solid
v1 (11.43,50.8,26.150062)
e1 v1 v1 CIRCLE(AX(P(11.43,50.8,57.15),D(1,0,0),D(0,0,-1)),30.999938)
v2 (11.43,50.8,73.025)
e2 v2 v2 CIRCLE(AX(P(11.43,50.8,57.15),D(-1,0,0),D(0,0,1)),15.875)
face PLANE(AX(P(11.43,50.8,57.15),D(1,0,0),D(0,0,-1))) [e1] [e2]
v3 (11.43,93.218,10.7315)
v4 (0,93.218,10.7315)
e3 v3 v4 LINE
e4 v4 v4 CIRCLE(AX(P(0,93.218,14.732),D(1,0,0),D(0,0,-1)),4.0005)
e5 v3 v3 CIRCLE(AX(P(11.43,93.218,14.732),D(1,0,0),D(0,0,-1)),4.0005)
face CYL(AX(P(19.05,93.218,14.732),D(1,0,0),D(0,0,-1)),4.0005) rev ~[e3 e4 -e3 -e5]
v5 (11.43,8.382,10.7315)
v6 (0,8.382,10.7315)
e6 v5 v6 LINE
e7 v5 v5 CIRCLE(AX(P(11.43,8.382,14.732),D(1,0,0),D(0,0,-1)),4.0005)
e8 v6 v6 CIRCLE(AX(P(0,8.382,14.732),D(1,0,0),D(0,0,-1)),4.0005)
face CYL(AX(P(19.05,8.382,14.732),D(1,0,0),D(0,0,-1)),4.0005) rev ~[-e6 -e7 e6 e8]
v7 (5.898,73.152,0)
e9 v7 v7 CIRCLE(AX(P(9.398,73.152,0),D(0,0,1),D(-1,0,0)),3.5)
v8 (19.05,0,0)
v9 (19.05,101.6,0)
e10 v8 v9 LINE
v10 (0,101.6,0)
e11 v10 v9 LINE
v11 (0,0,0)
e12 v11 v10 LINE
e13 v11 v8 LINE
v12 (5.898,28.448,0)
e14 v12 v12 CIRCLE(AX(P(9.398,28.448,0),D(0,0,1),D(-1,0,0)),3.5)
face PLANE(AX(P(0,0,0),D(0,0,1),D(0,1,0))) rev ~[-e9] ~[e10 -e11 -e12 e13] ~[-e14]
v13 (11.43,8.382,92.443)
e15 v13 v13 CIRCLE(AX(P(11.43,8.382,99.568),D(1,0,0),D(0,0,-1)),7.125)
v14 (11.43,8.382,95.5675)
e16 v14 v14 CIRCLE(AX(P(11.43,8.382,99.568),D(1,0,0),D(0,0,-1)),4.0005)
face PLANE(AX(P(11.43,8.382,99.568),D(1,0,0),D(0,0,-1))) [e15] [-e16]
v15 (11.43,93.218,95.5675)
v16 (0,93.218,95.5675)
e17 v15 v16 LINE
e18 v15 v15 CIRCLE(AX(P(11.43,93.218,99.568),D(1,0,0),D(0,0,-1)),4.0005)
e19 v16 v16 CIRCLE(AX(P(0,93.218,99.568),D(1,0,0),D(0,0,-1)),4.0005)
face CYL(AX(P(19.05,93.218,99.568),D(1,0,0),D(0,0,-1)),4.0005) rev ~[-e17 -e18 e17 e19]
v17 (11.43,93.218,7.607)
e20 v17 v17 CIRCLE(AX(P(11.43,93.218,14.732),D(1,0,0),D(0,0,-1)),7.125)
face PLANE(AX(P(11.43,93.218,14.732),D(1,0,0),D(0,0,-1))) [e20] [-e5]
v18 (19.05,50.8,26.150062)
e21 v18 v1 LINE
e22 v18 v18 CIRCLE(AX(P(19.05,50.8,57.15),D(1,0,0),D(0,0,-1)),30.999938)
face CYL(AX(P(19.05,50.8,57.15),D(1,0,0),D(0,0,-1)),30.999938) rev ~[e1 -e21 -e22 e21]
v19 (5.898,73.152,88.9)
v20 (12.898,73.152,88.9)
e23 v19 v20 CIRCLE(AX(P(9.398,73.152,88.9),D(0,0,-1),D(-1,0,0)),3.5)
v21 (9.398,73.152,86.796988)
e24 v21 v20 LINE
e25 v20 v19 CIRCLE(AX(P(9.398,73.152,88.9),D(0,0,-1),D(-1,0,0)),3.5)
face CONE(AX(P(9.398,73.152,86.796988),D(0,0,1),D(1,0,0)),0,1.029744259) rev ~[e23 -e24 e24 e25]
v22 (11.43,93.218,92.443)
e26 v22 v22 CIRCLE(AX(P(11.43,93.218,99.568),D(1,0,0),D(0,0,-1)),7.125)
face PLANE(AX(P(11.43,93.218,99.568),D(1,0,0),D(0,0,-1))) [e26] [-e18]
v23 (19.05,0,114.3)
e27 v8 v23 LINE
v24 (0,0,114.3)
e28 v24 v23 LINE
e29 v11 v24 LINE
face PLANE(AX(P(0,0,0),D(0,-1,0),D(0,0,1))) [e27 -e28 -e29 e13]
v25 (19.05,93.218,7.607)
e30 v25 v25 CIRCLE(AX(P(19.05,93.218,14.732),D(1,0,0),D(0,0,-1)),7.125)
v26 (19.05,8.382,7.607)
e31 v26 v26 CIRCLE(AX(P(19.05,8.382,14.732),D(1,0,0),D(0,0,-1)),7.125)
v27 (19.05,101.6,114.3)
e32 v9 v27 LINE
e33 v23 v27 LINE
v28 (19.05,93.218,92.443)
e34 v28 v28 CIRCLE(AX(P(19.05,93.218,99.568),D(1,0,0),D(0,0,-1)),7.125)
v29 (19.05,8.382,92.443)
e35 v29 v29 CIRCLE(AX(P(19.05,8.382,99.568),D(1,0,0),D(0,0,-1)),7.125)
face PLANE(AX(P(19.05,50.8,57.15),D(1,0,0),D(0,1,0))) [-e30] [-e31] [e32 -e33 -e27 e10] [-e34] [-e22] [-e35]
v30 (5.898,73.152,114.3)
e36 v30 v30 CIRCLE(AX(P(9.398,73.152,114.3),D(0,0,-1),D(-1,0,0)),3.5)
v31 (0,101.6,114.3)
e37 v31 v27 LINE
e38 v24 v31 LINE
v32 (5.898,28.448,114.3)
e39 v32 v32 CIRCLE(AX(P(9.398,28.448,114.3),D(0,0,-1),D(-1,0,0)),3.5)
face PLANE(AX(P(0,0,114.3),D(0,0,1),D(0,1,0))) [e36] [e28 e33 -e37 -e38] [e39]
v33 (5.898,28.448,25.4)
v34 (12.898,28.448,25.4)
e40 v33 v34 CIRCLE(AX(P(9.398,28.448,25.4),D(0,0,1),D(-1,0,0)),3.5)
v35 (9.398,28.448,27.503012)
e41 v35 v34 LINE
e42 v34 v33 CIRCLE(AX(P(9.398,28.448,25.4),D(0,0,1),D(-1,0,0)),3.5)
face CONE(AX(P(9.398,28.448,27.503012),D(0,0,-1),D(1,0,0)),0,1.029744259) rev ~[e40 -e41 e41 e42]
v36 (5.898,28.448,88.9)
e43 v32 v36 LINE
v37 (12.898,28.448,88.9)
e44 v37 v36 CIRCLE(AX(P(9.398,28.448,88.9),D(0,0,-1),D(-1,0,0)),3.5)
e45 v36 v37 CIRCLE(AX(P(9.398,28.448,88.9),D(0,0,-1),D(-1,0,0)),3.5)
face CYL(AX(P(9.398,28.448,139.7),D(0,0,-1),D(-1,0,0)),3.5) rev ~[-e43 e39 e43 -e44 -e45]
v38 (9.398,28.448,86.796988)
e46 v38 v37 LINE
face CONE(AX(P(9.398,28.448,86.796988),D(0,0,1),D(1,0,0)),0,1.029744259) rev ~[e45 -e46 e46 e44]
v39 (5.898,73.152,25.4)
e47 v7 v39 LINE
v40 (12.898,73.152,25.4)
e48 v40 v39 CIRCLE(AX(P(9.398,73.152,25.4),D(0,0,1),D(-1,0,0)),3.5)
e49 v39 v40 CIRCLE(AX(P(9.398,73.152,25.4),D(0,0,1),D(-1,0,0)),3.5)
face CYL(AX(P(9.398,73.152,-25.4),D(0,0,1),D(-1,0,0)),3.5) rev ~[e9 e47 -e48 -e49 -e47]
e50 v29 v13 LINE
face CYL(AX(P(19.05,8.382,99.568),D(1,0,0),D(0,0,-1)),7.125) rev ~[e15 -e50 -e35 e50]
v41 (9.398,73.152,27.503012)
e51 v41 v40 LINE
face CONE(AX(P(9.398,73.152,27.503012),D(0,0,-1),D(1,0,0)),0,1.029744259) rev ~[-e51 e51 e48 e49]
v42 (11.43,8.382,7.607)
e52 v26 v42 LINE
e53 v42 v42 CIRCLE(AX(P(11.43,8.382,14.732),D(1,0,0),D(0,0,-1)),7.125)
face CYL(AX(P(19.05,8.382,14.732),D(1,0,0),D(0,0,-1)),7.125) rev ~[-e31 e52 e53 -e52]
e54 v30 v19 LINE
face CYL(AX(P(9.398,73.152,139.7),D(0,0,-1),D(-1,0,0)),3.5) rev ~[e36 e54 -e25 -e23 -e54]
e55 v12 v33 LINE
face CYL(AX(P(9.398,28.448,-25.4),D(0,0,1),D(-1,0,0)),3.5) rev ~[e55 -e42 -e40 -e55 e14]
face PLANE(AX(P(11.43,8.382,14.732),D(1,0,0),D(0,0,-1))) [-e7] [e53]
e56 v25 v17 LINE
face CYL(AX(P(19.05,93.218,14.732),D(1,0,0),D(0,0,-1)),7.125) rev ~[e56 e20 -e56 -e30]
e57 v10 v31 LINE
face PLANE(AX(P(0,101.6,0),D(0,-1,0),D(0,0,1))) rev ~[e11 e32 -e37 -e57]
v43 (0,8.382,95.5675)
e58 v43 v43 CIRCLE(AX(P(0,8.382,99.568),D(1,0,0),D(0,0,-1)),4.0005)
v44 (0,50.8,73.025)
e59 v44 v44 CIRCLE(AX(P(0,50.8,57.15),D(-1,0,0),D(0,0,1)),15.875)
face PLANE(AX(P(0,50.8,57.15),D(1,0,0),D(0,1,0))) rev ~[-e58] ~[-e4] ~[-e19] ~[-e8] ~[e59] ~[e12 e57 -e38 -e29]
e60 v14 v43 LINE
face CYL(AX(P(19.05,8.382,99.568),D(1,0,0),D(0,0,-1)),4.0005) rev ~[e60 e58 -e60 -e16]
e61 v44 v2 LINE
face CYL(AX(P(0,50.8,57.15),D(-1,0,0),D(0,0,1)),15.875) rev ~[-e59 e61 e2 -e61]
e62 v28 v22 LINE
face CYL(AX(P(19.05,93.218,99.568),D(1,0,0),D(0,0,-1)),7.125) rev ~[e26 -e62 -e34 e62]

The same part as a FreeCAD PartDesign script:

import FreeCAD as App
import Part
import Sketcher
Q = App.Units.Quantity


def add_polygon(sketch, points):
    """Adds a closed chain of lines whose ends are joined by coincident constraints."""
    first, n = sketch.GeometryCount, len(points)
    for a, b in zip(points, points[1:] + points[:1]):
        sketch.addGeometry(Part.LineSegment(App.Vector(*a, 0), App.Vector(*b, 0)), False)
    for i in range(n):
        sketch.addConstraint(Sketcher.Constraint("Coincident", first + i, 2, first + (i + 1) % n, 1))

doc = App.newDocument("Part")
params = doc.addObject("Spreadsheet::Sheet", "Params")
for row, (alias, value) in enumerate([
    ("sketch1_width", "4 in"),
    ("sketch1_height", "4.5 in"),
    ("pad1_length", "0.75 in"),
    ("pocket1_length", "0.3 in"),
    ("sketch3_diameter", "1.25 in"),
    ("sketch4_diameter", "0.315 in"),
    ("pocket4_length", "0.3 in"),
    ("hole_diameter", "7 mm"),
    ("hole_depth", "1 in"),
    ("hole2_diameter", "7 mm"),
    ("hole2_depth", "1 in"),
], start=1):
    params.set(f"A{row}", alias)
    params.set(f"B{row}", "=" + value)
    params.setAlias(f"B{row}", alias)

body = doc.addObject("PartDesign::Body", "Body")

# Sketch on YZ plane
sketch1 = body.newObject("Sketcher::SketchObject", "Sketch")
sketch1.AttachmentSupport = (doc.getObject("YZ_Plane"), [""])
sketch1.MapMode = "FlatFace"
add_polygon(sketch1, [(0, 114.3), (0, 0), (101.6, 0), (101.6, 114.3)])  # lines 0-3
sketch1.addConstraint(Sketcher.Constraint("Vertical", 0))
sketch1.addConstraint(Sketcher.Constraint("Horizontal", 1))
sketch1.addConstraint(Sketcher.Constraint("Vertical", 2))
sketch1.addConstraint(Sketcher.Constraint("Horizontal", 3))
sketch1.addConstraint(Sketcher.Constraint("Coincident", 0, 2, -1, 1))
sketch1.addConstraint(Sketcher.Constraint("DistanceX", 1, 1, 1, 2, Q("4 in")))
sketch1.addConstraint(Sketcher.Constraint("DistanceY", 0, 2, 0, 1, Q("4.5 in")))
sketch1.setExpression("Constraints[9]", "Params.sketch1_width")
sketch1.setExpression("Constraints[10]", "Params.sketch1_height")
pad1 = body.newObject("PartDesign::Pad", "Pad")
pad1.Profile = sketch1
pad1.setExpression("Length", "Params.pad1_length")

# Sketch on YZ plane
sketch2 = body.newObject("Sketcher::SketchObject", "Sketch001")
sketch2.AttachmentSupport = (doc.getObject("YZ_Plane"), [""])
sketch2.MapMode = "FlatFace"
sketch2.AttachmentOffset = App.Placement(App.Vector(0, 0, 0.75 * 25.4), App.Rotation())
sketch2.addGeometry(Part.Circle(App.Vector(50.8, 57.15, 0), App.Vector(0, 0, 1), 30.999938), False)
sketch2.addConstraint(Sketcher.Constraint("DistanceX", -1, 1, 0, 3, Q("2 in")))
sketch2.addConstraint(Sketcher.Constraint("DistanceY", -1, 1, 0, 3, Q("2.25 in")))
sketch2.addConstraint(Sketcher.Constraint("Diameter", 0, 61.999876))
pocket1 = body.newObject("PartDesign::Pocket", "Pocket")
pocket1.Profile = sketch2
pocket1.setExpression("Length", "Params.pocket1_length")

# Sketch on YZ plane
sketch3 = body.newObject("Sketcher::SketchObject", "Sketch002")
sketch3.AttachmentSupport = (doc.getObject("YZ_Plane"), [""])
sketch3.MapMode = "FlatFace"
sketch3.addGeometry(Part.Circle(App.Vector(50.8, 57.15, 0), App.Vector(0, 0, 1), 15.875), False)
sketch3.addConstraint(Sketcher.Constraint("Diameter", 0, Q("1.25 in")))
sketch3.addConstraint(Sketcher.Constraint("DistanceX", -1, 1, 0, 3, Q("2 in")))
sketch3.addConstraint(Sketcher.Constraint("DistanceY", -1, 1, 0, 3, Q("2.25 in")))
sketch3.setExpression("Constraints[0]", "Params.sketch3_diameter")
pocket2 = body.newObject("PartDesign::Pocket", "Pocket001")
pocket2.Profile = sketch3
pocket2.Type = "ThroughAll"
pocket2.Reversed = True

# Sketch on YZ plane
sketch4 = body.newObject("Sketcher::SketchObject", "Sketch003")
sketch4.AttachmentSupport = (doc.getObject("YZ_Plane"), [""])
sketch4.MapMode = "FlatFace"
sketch4.AttachmentOffset = App.Placement(App.Vector(0, 0, 0.75 * 25.4), App.Rotation())
sketch4.addGeometry(Part.Circle(App.Vector(8.382, 99.568, 0), App.Vector(0, 0, 1), 4.0005), False)
sketch4.addGeometry(Part.Circle(App.Vector(93.218, 99.568, 0), App.Vector(0, 0, 1), 4.0005), False)
sketch4.addGeometry(Part.Circle(App.Vector(93.218, 14.732, 0), App.Vector(0, 0, 1), 4.0005), False)
sketch4.addGeometry(Part.Circle(App.Vector(8.382, 14.732, 0), App.Vector(0, 0, 1), 4.0005), False)
sketch4.addConstraint(Sketcher.Constraint("Equal", 0, 1))
sketch4.addConstraint(Sketcher.Constraint("Equal", 1, 2))
sketch4.addConstraint(Sketcher.Constraint("Equal", 2, 3))
sketch4.addConstraint(Sketcher.Constraint("Horizontal", 0, 3, 1, 3))
sketch4.addConstraint(Sketcher.Constraint("Horizontal", 2, 3, 3, 3))
sketch4.addConstraint(Sketcher.Constraint("Vertical", 1, 3, 2, 3))
sketch4.addConstraint(Sketcher.Constraint("Vertical", 0, 3, 3, 3))
sketch4.addConstraint(Sketcher.Constraint("Diameter", 0, Q("0.315 in")))
sketch4.addConstraint(Sketcher.Constraint("DistanceX", -1, 1, 0, 3, Q("0.33 in")))
sketch4.addConstraint(Sketcher.Constraint("DistanceY", -1, 1, 0, 3, Q("3.92 in")))
sketch4.addConstraint(Sketcher.Constraint("DistanceX", -1, 1, 1, 3, Q("3.67 in")))
sketch4.addConstraint(Sketcher.Constraint("DistanceY", -1, 1, 2, 3, Q("0.58 in")))
sketch4.setExpression("Constraints[7]", "Params.sketch4_diameter")
pocket3 = body.newObject("PartDesign::Pocket", "Pocket002")
pocket3.Profile = sketch4
pocket3.Type = "ThroughAll"

# Sketch on YZ plane
sketch5 = body.newObject("Sketcher::SketchObject", "Sketch004")
sketch5.AttachmentSupport = (doc.getObject("YZ_Plane"), [""])
sketch5.MapMode = "FlatFace"
sketch5.AttachmentOffset = App.Placement(App.Vector(0, 0, 0.75 * 25.4), App.Rotation())
sketch5.addGeometry(Part.Circle(App.Vector(8.382, 99.568, 0), App.Vector(0, 0, 1), 7.125), False)
sketch5.addGeometry(Part.Circle(App.Vector(93.218, 99.568, 0), App.Vector(0, 0, 1), 7.125), False)
sketch5.addGeometry(Part.Circle(App.Vector(93.218, 14.732, 0), App.Vector(0, 0, 1), 7.125), False)
sketch5.addGeometry(Part.Circle(App.Vector(8.382, 14.732, 0), App.Vector(0, 0, 1), 7.125), False)
sketch5.addConstraint(Sketcher.Constraint("Equal", 0, 1))
sketch5.addConstraint(Sketcher.Constraint("Equal", 1, 2))
sketch5.addConstraint(Sketcher.Constraint("Equal", 2, 3))
sketch5.addConstraint(Sketcher.Constraint("Horizontal", 0, 3, 1, 3))
sketch5.addConstraint(Sketcher.Constraint("Horizontal", 2, 3, 3, 3))
sketch5.addConstraint(Sketcher.Constraint("Vertical", 1, 3, 2, 3))
sketch5.addConstraint(Sketcher.Constraint("Vertical", 0, 3, 3, 3))
sketch5.addConstraint(Sketcher.Constraint("Diameter", 0, 14.249999))
sketch5.addConstraint(Sketcher.Constraint("DistanceX", -1, 1, 0, 3, Q("0.33 in")))
sketch5.addConstraint(Sketcher.Constraint("DistanceY", -1, 1, 0, 3, Q("3.92 in")))
sketch5.addConstraint(Sketcher.Constraint("DistanceX", -1, 1, 1, 3, Q("3.67 in")))
sketch5.addConstraint(Sketcher.Constraint("DistanceY", -1, 1, 2, 3, Q("0.58 in")))
pocket4 = body.newObject("PartDesign::Pocket", "Pocket003")
pocket4.Profile = sketch5
pocket4.setExpression("Length", "Params.pocket4_length")

# Sketch on XY plane
sketch6 = body.newObject("Sketcher::SketchObject", "Sketch005")
sketch6.AttachmentSupport = (doc.getObject("XY_Plane"), [""])
sketch6.MapMode = "FlatFace"
sketch6.AttachmentOffset = App.Placement(App.Vector(0, 0, 4.5 * 25.4), App.Rotation())
sketch6.addGeometry(Part.Circle(App.Vector(9.398, 73.152, 0), App.Vector(0, 0, 1), 3.5), False)
sketch6.addGeometry(Part.Circle(App.Vector(9.398, 28.448, 0), App.Vector(0, 0, 1), 3.5), False)
sketch6.addConstraint(Sketcher.Constraint("Equal", 0, 1))
sketch6.addConstraint(Sketcher.Constraint("Vertical", 0, 3, 1, 3))
sketch6.addConstraint(Sketcher.Constraint("Diameter", 0, 7.0))
sketch6.addConstraint(Sketcher.Constraint("DistanceX", -1, 1, 0, 3, Q("0.37 in")))
sketch6.addConstraint(Sketcher.Constraint("DistanceY", -1, 1, 0, 3, Q("2.88 in")))
sketch6.addConstraint(Sketcher.Constraint("DistanceY", -1, 1, 1, 3, Q("1.12 in")))
doc.recompute()
hole = body.newObject("PartDesign::Hole", "Hole")
hole.Profile = sketch6
hole.ThreadType = "None"
hole.setExpression("Diameter", "Params.hole_diameter")
hole.DepthType = "Dimension"
hole.setExpression("Depth", "Params.hole_depth")
hole.DrillPoint = "Angled"
hole.DrillPointAngle = 118

# Sketch on XY plane
sketch7 = body.newObject("Sketcher::SketchObject", "Sketch006")
sketch7.AttachmentSupport = (doc.getObject("XY_Plane"), [""])
sketch7.MapMode = "FlatFace"
sketch7.addGeometry(Part.Circle(App.Vector(9.398, 73.152, 0), App.Vector(0, 0, 1), 3.5), False)
sketch7.addGeometry(Part.Circle(App.Vector(9.398, 28.448, 0), App.Vector(0, 0, 1), 3.5), False)
sketch7.addConstraint(Sketcher.Constraint("Equal", 0, 1))
sketch7.addConstraint(Sketcher.Constraint("Vertical", 0, 3, 1, 3))
sketch7.addConstraint(Sketcher.Constraint("Diameter", 0, 7.0))
sketch7.addConstraint(Sketcher.Constraint("DistanceX", -1, 1, 0, 3, Q("0.37 in")))
sketch7.addConstraint(Sketcher.Constraint("DistanceY", -1, 1, 0, 3, Q("2.88 in")))
sketch7.addConstraint(Sketcher.Constraint("DistanceY", -1, 1, 1, 3, Q("1.12 in")))
doc.recompute()
hole2 = body.newObject("PartDesign::Hole", "Hole001")
hole2.Profile = sketch7
hole2.ThreadType = "None"
hole2.setExpression("Diameter", "Params.hole2_diameter")
hole2.DepthType = "Dimension"
hole2.setExpression("Depth", "Params.hole2_depth")
hole2.DrillPoint = "Angled"
hole2.DrillPointAngle = 118
hole2.Reversed = True

doc.recompute()
